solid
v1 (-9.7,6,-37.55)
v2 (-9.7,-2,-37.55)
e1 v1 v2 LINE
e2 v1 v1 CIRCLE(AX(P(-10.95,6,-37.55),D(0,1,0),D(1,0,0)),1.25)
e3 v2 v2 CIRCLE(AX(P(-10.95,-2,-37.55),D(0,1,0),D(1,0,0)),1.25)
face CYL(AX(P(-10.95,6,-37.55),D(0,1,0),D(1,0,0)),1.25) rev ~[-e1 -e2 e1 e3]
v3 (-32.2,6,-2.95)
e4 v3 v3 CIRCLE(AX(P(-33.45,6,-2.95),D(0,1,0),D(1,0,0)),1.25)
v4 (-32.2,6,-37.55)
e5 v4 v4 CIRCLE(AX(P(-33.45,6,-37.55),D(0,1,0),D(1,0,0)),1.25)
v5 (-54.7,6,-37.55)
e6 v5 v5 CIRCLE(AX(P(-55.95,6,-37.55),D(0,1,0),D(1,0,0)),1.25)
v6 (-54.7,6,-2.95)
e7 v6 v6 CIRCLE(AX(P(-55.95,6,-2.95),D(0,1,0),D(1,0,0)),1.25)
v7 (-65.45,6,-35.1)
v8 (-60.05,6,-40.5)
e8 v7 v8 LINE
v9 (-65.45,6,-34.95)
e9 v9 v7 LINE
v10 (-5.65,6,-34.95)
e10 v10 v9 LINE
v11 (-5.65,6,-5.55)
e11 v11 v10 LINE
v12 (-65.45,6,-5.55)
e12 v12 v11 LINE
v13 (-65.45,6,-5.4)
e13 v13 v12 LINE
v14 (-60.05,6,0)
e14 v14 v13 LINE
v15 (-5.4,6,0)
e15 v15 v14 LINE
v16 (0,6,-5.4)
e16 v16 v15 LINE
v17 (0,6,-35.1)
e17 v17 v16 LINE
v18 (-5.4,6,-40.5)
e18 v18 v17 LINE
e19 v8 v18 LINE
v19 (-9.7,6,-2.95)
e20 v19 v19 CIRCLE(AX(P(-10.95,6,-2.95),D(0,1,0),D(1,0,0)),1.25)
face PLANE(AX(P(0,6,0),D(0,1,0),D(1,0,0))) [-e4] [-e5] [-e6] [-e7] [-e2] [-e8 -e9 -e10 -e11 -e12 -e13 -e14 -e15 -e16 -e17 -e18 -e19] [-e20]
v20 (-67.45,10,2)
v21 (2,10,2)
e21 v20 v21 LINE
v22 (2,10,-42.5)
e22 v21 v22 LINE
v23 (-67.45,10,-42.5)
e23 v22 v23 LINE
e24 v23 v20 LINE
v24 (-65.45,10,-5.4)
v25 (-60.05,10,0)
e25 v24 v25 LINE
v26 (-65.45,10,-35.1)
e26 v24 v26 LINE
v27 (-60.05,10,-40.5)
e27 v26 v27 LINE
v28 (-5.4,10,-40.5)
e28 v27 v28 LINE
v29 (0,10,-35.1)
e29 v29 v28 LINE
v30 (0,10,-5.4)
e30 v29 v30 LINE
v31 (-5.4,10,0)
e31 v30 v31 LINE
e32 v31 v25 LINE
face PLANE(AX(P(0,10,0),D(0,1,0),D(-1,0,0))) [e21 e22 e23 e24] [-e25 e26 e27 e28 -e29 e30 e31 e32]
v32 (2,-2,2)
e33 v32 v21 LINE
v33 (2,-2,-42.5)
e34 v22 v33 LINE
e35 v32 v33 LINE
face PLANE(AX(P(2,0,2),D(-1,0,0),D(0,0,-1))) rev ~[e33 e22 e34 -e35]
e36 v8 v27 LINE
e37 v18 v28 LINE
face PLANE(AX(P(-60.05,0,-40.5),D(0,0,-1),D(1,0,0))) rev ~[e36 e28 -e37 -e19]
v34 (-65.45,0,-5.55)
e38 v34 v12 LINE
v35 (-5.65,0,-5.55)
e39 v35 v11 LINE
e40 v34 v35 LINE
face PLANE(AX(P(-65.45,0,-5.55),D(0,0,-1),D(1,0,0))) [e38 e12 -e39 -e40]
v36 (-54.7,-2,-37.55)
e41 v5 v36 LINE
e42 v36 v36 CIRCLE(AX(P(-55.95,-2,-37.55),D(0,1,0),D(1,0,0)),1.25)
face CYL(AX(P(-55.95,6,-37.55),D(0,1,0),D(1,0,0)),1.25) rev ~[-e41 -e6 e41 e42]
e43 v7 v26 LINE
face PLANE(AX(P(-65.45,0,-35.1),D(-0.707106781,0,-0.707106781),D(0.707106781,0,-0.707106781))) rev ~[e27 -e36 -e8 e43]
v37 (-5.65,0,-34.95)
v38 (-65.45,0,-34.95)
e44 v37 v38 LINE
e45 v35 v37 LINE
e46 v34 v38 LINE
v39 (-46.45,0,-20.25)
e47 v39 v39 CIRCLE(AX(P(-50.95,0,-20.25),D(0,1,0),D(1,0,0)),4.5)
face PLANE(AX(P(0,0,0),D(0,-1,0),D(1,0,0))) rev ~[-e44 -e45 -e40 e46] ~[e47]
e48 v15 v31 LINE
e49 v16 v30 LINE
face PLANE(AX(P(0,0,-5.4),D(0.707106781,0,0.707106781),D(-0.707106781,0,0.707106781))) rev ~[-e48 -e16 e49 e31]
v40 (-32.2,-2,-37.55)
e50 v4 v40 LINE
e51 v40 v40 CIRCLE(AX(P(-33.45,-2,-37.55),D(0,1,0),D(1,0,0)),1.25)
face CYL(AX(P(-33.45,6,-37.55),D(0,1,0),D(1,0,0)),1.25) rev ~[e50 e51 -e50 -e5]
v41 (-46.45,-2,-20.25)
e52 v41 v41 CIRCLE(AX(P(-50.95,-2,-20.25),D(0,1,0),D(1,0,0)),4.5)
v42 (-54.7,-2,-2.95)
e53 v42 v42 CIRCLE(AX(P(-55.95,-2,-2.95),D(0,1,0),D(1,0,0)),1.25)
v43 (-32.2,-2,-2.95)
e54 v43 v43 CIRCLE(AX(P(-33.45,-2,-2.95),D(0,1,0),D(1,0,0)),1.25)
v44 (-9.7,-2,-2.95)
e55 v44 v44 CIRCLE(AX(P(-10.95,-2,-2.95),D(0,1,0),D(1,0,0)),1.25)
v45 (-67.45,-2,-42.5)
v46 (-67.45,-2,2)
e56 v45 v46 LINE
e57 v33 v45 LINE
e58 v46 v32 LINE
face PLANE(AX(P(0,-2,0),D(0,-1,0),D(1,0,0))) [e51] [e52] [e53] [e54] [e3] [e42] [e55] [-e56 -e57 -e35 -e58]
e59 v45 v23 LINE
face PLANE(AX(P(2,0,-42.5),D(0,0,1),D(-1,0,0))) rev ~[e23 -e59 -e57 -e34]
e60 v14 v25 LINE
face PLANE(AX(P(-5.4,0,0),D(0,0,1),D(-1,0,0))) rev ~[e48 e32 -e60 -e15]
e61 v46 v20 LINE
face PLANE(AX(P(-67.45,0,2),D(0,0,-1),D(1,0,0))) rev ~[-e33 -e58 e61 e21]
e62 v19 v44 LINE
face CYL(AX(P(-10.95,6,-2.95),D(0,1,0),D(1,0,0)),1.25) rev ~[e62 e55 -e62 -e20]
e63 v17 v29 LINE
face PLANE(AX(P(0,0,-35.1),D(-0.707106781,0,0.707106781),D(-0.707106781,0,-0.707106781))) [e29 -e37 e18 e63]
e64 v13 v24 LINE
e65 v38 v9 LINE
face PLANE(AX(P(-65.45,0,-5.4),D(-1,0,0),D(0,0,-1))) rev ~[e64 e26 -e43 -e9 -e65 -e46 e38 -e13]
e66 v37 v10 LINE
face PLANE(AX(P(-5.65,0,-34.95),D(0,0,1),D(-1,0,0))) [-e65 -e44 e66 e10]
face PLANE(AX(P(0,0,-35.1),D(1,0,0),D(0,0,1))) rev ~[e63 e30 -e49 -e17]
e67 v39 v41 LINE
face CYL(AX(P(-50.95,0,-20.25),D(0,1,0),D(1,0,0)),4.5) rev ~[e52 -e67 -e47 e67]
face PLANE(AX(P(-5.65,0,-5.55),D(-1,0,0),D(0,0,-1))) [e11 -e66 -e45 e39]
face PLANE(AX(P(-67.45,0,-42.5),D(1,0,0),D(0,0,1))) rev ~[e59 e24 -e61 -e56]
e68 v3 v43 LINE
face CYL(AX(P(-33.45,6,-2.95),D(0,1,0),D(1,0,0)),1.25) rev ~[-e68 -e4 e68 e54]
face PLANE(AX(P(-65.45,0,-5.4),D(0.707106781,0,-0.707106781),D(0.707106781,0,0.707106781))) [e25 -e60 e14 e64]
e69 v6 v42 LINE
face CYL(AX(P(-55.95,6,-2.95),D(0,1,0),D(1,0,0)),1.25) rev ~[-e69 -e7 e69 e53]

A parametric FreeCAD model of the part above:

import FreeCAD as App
import Part
import Sketcher

V = App.Vector


def add_polygon(sketch, points):
    """Adds a closed chain of lines whose ends are joined by coincident constraints."""
    first, n = sketch.GeometryCount, len(points)
    for a, b in zip(points, points[1:] + points[:1]):
        sketch.addGeometry(Part.LineSegment(App.Vector(*a, 0), App.Vector(*b, 0)), False)
    for i in range(n):
        sketch.addConstraint(Sketcher.Constraint("Coincident", first + i, 2, first + (i + 1) % n, 1))

doc = App.newDocument("Part")
body = doc.addObject("PartDesign::Body", "Body")

# Sketch on XZ plane
sketch1 = body.newObject("Sketcher::SketchObject", "Sketch")
sketch1.AttachmentSupport = (doc.getObject("XZ_Plane"), [""])
sketch1.MapMode = "FlatFace"
add_polygon(sketch1, [(2, -42), (-67, -42), (-67, 2), (2, 2)])  # lines 0-3
add_polygon(sketch1, [(0, -5), (-5, 0), (-60, 0), (-65, -5), (-65, -35), (-60, -40), (-5, -40), (0, -35)])  # lines 4-11
sketch1.addConstraint([
    Sketcher.Constraint("Horizontal", 0),
    Sketcher.Constraint("Vertical", 1),
    Sketcher.Constraint("Horizontal", 2),
    Sketcher.Constraint("Vertical", 3),
    Sketcher.Constraint("Horizontal", 5),
    Sketcher.Constraint("Vertical", 7),
    Sketcher.Constraint("Horizontal", 9),
    Sketcher.Constraint("Vertical", 11),
    Sketcher.Constraint("PointOnObject", 4, 2, -1),
    Sketcher.Constraint("PointOnObject", 10, 2, -2),
    Sketcher.Constraint("Perpendicular", 4, 6),
    Sketcher.Constraint("Perpendicular", 6, 8),
    Sketcher.Constraint("Perpendicular", 8, 10),
    Sketcher.Constraint("Horizontal", 7, 2, 10, 2),
    Sketcher.Constraint("Horizontal", 6, 2, 11, 2),
    Sketcher.Constraint("Vertical", 5, 2, 8, 2),
    Sketcher.Constraint("Vertical", 4, 2, 9, 2),
    Sketcher.Constraint("DistanceY", -1, 1, 1, 2, 2.0),
    Sketcher.Constraint("DistanceX", -1, 1, 2, 2, 2.0),
    Sketcher.Constraint("DistanceX", 1, 2, 6, 2, 2.0),
    Sketcher.Constraint("DistanceY", 0, 2, 8, 2, 2.0),
    Sketcher.Constraint("DistanceX", 4, 2, -1, 1, 5.4),
    Sketcher.Constraint("DistanceY", 8, 2, -1, 1, 40.5),
    Sketcher.Constraint("DistanceX", 6, 2, -1, 1, 65.45),
])
pad1 = body.newObject("PartDesign::Pad", "Pad")
pad1.Profile = sketch1
pad1.Length = 10
pad1.Reversed = True

# Sketch on XZ plane
sketch2 = body.newObject("Sketcher::SketchObject", "Sketch001")
sketch2.AttachmentSupport = (doc.getObject("XZ_Plane"), [""])
sketch2.MapMode = "FlatFace"
add_polygon(sketch2, [(2, 2), (-67, 2), (-67, -42), (2, -42)])  # lines 0-3
sketch2.addConstraint([
    Sketcher.Constraint("Horizontal", 0),
    Sketcher.Constraint("Vertical", 1),
    Sketcher.Constraint("Horizontal", 2),
    Sketcher.Constraint("Vertical", 3),
    Sketcher.Constraint("DistanceY", 1, 2, 1, 1, 44.5),
    Sketcher.Constraint("DistanceY", -1, 1, 0, 2, 2.0),
    Sketcher.Constraint("DistanceX", -1, 1, 2, 2, 2.0),
    Sketcher.Constraint("DistanceX", 0, 2, 0, 1, 69.45),
])
pad2 = body.newObject("PartDesign::Pad", "Pad001")
pad2.Profile = sketch2
pad2.Length = 2

# Sketch on XZ plane
sketch3 = body.newObject("Sketcher::SketchObject", "Sketch002")
sketch3.AttachmentSupport = (doc.getObject("XZ_Plane"), [""])
sketch3.MapMode = "FlatFace"
add_polygon(sketch3, [(0, -5.4), (0, -35.1), (-5.4, -40.5), (-60.05, -40.5), (-65.45, -35.1), (-65.45, -34.95), (-5.65, -34.95), (-5.65, -5.55), (-65.45, -5.55), (-65.45, -5.4), (-60.05, 0), (-5.4, 0)])  # lines 0-11
sketch3.addConstraint([
    Sketcher.Constraint("Vertical", 0),
    Sketcher.Constraint("Horizontal", 2),
    Sketcher.Constraint("Vertical", 4),
    Sketcher.Constraint("Horizontal", 5),
    Sketcher.Constraint("Vertical", 6),
    Sketcher.Constraint("Horizontal", 7),
    Sketcher.Constraint("Vertical", 8),
    Sketcher.Constraint("Horizontal", 10),
    Sketcher.Constraint("PointOnObject", 0, 2, -2),
    Sketcher.Constraint("PointOnObject", 9, 2, -1),
    Sketcher.Constraint("Perpendicular", 1, 3),
    Sketcher.Constraint("Perpendicular", 3, 9),
    Sketcher.Constraint("Perpendicular", 9, 11),
    Sketcher.Constraint("Horizontal", 0, 2, 3, 2),
    Sketcher.Constraint("Horizontal", 8, 2, 11, 2),
    Sketcher.Constraint("Vertical", 4, 2, 7, 2),
    Sketcher.Constraint("Vertical", 2, 2, 9, 2),
    Sketcher.Constraint("Vertical", 1, 2, 10, 2),
    Sketcher.Constraint("Equal", 4, 8),
    Sketcher.Constraint("DistanceX", 5, 1, 5, 2, 59.8),
    Sketcher.Constraint("DistanceY", 6, 1, 6, 2, 29.4),
    Sketcher.Constraint("DistanceY", 0, 2, 0, 1, 29.7),
    Sketcher.Constraint("DistanceX", 2, 2, 2, 1, 54.65),
    Sketcher.Constraint("DistanceY", 0, 2, -1, 1, 35.1),
])
pad3 = body.newObject("PartDesign::Pad", "Pad002")
pad3.Profile = sketch3
pad3.Length = 6
pad3.Reversed = True

# Sketch on XZ plane
sketch4 = body.newObject("Sketcher::SketchObject", "Sketch003")
sketch4.AttachmentSupport = (doc.getObject("XZ_Plane"), [""])
sketch4.MapMode = "FlatFace"
sketch4.addGeometry(Part.Circle(V(-51, -20.2, 0), V(0, 0, 1), 4.5), False)
sketch4.addConstraint([
    Sketcher.Constraint("Diameter", 0, 9.0),
    Sketcher.Constraint("DistanceX", 0, 3, -1, 1, 50.95),
    Sketcher.Constraint("DistanceY", 0, 3, -1, 1, 20.25),
])
pocket1 = body.newObject("PartDesign::Pocket", "Pocket")
pocket1.Profile = sketch4
pocket1.Length = 6
pocket1.Reversed = True

# Sketch on XZ plane
sketch5 = body.newObject("Sketcher::SketchObject", "Sketch004")
sketch5.AttachmentSupport = (doc.getObject("XZ_Plane"), [""])
sketch5.MapMode = "FlatFace"
sketch5.AttachmentOffset = App.Placement(V(0, 0, -6), App.Rotation())
sketch5.addGeometry([
    Part.Circle(V(-56, -3, 0), V(0, 0, 1), 1.2),  # 0
    Part.Circle(V(-33.5, -3, 0), V(0, 0, 1), 1.2),  # 1
    Part.Circle(V(-10.9, -3, 0), V(0, 0, 1), 1.2),  # 2
    Part.Circle(V(-56, -37.5, 0), V(0, 0, 1), 1.2),  # 3
    Part.Circle(V(-33.5, -37.5, 0), V(0, 0, 1), 1.2),  # 4
    Part.Circle(V(-10.9, -37.5, 0), V(0, 0, 1), 1.2),  # 5
], False)
sketch5.addConstraint([
    Sketcher.Constraint("Equal", 0, 1),
    Sketcher.Constraint("Equal", 1, 2),
    Sketcher.Constraint("Equal", 2, 3),
    Sketcher.Constraint("Equal", 3, 4),
    Sketcher.Constraint("Equal", 4, 5),
    Sketcher.Constraint("Horizontal", 0, 3, 1, 3),
    Sketcher.Constraint("Horizontal", 1, 3, 2, 3),
    Sketcher.Constraint("Horizontal", 3, 3, 4, 3),
    Sketcher.Constraint("Horizontal", 4, 3, 5, 3),
    Sketcher.Constraint("Vertical", 0, 3, 3, 3),
    Sketcher.Constraint("Vertical", 1, 3, 4, 3),
    Sketcher.Constraint("Vertical", 2, 3, 5, 3),
    Sketcher.Constraint("Diameter", 0, 2.5),
    Sketcher.Constraint("DistanceX", 0, 3, 1, 3, 22.5),
    Sketcher.Constraint("DistanceX", 1, 3, 2, 3, 22.5),
    Sketcher.Constraint("DistanceY", 3, 3, 0, 3, 34.6),
    Sketcher.Constraint("DistanceX", 0, 3, -1, 1, 55.95),
    Sketcher.Constraint("DistanceY", 0, 3, -1, 1, 2.95),
])
pocket2 = body.newObject("PartDesign::Pocket", "Pocket001")
pocket2.Profile = sketch5
pocket2.Type = "ThroughAll"
pocket2.Reversed = True

doc.recompute()
